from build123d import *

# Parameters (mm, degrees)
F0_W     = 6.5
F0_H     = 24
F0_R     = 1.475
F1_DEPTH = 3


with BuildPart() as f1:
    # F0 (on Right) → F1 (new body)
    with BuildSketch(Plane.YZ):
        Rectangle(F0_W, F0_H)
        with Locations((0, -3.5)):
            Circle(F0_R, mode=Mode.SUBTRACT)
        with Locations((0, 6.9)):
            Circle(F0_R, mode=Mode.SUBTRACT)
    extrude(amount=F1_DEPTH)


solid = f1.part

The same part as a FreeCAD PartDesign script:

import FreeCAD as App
import Part
import Sketcher


def add_polygon(sketch, points):
    """Adds a closed chain of lines whose ends are joined by coincident constraints."""
    first, n = sketch.GeometryCount, len(points)
    for a, b in zip(points, points[1:] + points[:1]):
        sketch.addGeometry(Part.LineSegment(App.Vector(*a, 0), App.Vector(*b, 0)), False)
    for i in range(n):
        sketch.addConstraint(Sketcher.Constraint("Coincident", first + i, 2, first + (i + 1) % n, 1))

doc = App.newDocument("Part")
body = doc.addObject("PartDesign::Body", "Body")

# Sketch on YZ plane
sketch1 = body.newObject("Sketcher::SketchObject", "Sketch")
sketch1.AttachmentSupport = (doc.getObject("YZ_Plane"), [""])
sketch1.MapMode = "FlatFace"
add_polygon(sketch1, [(-3.25, 12), (-3.25, -12), (3.25, -12), (3.25, 12)])  # lines 0-3
sketch1.addGeometry(Part.Circle(App.Vector(0, -3.5, 0), App.Vector(0, 0, 1), 1.475), False)  # 4
sketch1.addGeometry(Part.Circle(App.Vector(0, 6.9, 0), App.Vector(0, 0, 1), 1.475), False)  # 5
sketch1.addConstraint(Sketcher.Constraint("Vertical", 0))
sketch1.addConstraint(Sketcher.Constraint("Horizontal", 1))
sketch1.addConstraint(Sketcher.Constraint("Vertical", 2))
sketch1.addConstraint(Sketcher.Constraint("Horizontal", 3))
sketch1.addConstraint(Sketcher.Constraint("Equal", 4, 5))
sketch1.addConstraint(Sketcher.Constraint("Symmetric", 0, 2, 2, 2, -1, 1))
sketch1.addConstraint(Sketcher.Constraint("PointOnObject", 4, 3, -2))
sketch1.addConstraint(Sketcher.Constraint("PointOnObject", 5, 3, -2))
sketch1.addConstraint(Sketcher.Constraint("Diameter", 4, 2.95))
sketch1.addConstraint(Sketcher.Constraint("DistanceY", 0, 2, 0, 1, 24.0))
sketch1.addConstraint(Sketcher.Constraint("DistanceX", 1, 1, 1, 2, 6.5))
sketch1.addConstraint(Sketcher.Constraint("DistanceY", 4, 3, -1, 1, 3.5))
sketch1.addConstraint(Sketcher.Constraint("DistanceY", -1, 1, 5, 3, 6.9))
pad1 = body.newObject("PartDesign::Pad", "Pad")
pad1.Profile = sketch1
pad1.Length = 3

doc.recompute()
